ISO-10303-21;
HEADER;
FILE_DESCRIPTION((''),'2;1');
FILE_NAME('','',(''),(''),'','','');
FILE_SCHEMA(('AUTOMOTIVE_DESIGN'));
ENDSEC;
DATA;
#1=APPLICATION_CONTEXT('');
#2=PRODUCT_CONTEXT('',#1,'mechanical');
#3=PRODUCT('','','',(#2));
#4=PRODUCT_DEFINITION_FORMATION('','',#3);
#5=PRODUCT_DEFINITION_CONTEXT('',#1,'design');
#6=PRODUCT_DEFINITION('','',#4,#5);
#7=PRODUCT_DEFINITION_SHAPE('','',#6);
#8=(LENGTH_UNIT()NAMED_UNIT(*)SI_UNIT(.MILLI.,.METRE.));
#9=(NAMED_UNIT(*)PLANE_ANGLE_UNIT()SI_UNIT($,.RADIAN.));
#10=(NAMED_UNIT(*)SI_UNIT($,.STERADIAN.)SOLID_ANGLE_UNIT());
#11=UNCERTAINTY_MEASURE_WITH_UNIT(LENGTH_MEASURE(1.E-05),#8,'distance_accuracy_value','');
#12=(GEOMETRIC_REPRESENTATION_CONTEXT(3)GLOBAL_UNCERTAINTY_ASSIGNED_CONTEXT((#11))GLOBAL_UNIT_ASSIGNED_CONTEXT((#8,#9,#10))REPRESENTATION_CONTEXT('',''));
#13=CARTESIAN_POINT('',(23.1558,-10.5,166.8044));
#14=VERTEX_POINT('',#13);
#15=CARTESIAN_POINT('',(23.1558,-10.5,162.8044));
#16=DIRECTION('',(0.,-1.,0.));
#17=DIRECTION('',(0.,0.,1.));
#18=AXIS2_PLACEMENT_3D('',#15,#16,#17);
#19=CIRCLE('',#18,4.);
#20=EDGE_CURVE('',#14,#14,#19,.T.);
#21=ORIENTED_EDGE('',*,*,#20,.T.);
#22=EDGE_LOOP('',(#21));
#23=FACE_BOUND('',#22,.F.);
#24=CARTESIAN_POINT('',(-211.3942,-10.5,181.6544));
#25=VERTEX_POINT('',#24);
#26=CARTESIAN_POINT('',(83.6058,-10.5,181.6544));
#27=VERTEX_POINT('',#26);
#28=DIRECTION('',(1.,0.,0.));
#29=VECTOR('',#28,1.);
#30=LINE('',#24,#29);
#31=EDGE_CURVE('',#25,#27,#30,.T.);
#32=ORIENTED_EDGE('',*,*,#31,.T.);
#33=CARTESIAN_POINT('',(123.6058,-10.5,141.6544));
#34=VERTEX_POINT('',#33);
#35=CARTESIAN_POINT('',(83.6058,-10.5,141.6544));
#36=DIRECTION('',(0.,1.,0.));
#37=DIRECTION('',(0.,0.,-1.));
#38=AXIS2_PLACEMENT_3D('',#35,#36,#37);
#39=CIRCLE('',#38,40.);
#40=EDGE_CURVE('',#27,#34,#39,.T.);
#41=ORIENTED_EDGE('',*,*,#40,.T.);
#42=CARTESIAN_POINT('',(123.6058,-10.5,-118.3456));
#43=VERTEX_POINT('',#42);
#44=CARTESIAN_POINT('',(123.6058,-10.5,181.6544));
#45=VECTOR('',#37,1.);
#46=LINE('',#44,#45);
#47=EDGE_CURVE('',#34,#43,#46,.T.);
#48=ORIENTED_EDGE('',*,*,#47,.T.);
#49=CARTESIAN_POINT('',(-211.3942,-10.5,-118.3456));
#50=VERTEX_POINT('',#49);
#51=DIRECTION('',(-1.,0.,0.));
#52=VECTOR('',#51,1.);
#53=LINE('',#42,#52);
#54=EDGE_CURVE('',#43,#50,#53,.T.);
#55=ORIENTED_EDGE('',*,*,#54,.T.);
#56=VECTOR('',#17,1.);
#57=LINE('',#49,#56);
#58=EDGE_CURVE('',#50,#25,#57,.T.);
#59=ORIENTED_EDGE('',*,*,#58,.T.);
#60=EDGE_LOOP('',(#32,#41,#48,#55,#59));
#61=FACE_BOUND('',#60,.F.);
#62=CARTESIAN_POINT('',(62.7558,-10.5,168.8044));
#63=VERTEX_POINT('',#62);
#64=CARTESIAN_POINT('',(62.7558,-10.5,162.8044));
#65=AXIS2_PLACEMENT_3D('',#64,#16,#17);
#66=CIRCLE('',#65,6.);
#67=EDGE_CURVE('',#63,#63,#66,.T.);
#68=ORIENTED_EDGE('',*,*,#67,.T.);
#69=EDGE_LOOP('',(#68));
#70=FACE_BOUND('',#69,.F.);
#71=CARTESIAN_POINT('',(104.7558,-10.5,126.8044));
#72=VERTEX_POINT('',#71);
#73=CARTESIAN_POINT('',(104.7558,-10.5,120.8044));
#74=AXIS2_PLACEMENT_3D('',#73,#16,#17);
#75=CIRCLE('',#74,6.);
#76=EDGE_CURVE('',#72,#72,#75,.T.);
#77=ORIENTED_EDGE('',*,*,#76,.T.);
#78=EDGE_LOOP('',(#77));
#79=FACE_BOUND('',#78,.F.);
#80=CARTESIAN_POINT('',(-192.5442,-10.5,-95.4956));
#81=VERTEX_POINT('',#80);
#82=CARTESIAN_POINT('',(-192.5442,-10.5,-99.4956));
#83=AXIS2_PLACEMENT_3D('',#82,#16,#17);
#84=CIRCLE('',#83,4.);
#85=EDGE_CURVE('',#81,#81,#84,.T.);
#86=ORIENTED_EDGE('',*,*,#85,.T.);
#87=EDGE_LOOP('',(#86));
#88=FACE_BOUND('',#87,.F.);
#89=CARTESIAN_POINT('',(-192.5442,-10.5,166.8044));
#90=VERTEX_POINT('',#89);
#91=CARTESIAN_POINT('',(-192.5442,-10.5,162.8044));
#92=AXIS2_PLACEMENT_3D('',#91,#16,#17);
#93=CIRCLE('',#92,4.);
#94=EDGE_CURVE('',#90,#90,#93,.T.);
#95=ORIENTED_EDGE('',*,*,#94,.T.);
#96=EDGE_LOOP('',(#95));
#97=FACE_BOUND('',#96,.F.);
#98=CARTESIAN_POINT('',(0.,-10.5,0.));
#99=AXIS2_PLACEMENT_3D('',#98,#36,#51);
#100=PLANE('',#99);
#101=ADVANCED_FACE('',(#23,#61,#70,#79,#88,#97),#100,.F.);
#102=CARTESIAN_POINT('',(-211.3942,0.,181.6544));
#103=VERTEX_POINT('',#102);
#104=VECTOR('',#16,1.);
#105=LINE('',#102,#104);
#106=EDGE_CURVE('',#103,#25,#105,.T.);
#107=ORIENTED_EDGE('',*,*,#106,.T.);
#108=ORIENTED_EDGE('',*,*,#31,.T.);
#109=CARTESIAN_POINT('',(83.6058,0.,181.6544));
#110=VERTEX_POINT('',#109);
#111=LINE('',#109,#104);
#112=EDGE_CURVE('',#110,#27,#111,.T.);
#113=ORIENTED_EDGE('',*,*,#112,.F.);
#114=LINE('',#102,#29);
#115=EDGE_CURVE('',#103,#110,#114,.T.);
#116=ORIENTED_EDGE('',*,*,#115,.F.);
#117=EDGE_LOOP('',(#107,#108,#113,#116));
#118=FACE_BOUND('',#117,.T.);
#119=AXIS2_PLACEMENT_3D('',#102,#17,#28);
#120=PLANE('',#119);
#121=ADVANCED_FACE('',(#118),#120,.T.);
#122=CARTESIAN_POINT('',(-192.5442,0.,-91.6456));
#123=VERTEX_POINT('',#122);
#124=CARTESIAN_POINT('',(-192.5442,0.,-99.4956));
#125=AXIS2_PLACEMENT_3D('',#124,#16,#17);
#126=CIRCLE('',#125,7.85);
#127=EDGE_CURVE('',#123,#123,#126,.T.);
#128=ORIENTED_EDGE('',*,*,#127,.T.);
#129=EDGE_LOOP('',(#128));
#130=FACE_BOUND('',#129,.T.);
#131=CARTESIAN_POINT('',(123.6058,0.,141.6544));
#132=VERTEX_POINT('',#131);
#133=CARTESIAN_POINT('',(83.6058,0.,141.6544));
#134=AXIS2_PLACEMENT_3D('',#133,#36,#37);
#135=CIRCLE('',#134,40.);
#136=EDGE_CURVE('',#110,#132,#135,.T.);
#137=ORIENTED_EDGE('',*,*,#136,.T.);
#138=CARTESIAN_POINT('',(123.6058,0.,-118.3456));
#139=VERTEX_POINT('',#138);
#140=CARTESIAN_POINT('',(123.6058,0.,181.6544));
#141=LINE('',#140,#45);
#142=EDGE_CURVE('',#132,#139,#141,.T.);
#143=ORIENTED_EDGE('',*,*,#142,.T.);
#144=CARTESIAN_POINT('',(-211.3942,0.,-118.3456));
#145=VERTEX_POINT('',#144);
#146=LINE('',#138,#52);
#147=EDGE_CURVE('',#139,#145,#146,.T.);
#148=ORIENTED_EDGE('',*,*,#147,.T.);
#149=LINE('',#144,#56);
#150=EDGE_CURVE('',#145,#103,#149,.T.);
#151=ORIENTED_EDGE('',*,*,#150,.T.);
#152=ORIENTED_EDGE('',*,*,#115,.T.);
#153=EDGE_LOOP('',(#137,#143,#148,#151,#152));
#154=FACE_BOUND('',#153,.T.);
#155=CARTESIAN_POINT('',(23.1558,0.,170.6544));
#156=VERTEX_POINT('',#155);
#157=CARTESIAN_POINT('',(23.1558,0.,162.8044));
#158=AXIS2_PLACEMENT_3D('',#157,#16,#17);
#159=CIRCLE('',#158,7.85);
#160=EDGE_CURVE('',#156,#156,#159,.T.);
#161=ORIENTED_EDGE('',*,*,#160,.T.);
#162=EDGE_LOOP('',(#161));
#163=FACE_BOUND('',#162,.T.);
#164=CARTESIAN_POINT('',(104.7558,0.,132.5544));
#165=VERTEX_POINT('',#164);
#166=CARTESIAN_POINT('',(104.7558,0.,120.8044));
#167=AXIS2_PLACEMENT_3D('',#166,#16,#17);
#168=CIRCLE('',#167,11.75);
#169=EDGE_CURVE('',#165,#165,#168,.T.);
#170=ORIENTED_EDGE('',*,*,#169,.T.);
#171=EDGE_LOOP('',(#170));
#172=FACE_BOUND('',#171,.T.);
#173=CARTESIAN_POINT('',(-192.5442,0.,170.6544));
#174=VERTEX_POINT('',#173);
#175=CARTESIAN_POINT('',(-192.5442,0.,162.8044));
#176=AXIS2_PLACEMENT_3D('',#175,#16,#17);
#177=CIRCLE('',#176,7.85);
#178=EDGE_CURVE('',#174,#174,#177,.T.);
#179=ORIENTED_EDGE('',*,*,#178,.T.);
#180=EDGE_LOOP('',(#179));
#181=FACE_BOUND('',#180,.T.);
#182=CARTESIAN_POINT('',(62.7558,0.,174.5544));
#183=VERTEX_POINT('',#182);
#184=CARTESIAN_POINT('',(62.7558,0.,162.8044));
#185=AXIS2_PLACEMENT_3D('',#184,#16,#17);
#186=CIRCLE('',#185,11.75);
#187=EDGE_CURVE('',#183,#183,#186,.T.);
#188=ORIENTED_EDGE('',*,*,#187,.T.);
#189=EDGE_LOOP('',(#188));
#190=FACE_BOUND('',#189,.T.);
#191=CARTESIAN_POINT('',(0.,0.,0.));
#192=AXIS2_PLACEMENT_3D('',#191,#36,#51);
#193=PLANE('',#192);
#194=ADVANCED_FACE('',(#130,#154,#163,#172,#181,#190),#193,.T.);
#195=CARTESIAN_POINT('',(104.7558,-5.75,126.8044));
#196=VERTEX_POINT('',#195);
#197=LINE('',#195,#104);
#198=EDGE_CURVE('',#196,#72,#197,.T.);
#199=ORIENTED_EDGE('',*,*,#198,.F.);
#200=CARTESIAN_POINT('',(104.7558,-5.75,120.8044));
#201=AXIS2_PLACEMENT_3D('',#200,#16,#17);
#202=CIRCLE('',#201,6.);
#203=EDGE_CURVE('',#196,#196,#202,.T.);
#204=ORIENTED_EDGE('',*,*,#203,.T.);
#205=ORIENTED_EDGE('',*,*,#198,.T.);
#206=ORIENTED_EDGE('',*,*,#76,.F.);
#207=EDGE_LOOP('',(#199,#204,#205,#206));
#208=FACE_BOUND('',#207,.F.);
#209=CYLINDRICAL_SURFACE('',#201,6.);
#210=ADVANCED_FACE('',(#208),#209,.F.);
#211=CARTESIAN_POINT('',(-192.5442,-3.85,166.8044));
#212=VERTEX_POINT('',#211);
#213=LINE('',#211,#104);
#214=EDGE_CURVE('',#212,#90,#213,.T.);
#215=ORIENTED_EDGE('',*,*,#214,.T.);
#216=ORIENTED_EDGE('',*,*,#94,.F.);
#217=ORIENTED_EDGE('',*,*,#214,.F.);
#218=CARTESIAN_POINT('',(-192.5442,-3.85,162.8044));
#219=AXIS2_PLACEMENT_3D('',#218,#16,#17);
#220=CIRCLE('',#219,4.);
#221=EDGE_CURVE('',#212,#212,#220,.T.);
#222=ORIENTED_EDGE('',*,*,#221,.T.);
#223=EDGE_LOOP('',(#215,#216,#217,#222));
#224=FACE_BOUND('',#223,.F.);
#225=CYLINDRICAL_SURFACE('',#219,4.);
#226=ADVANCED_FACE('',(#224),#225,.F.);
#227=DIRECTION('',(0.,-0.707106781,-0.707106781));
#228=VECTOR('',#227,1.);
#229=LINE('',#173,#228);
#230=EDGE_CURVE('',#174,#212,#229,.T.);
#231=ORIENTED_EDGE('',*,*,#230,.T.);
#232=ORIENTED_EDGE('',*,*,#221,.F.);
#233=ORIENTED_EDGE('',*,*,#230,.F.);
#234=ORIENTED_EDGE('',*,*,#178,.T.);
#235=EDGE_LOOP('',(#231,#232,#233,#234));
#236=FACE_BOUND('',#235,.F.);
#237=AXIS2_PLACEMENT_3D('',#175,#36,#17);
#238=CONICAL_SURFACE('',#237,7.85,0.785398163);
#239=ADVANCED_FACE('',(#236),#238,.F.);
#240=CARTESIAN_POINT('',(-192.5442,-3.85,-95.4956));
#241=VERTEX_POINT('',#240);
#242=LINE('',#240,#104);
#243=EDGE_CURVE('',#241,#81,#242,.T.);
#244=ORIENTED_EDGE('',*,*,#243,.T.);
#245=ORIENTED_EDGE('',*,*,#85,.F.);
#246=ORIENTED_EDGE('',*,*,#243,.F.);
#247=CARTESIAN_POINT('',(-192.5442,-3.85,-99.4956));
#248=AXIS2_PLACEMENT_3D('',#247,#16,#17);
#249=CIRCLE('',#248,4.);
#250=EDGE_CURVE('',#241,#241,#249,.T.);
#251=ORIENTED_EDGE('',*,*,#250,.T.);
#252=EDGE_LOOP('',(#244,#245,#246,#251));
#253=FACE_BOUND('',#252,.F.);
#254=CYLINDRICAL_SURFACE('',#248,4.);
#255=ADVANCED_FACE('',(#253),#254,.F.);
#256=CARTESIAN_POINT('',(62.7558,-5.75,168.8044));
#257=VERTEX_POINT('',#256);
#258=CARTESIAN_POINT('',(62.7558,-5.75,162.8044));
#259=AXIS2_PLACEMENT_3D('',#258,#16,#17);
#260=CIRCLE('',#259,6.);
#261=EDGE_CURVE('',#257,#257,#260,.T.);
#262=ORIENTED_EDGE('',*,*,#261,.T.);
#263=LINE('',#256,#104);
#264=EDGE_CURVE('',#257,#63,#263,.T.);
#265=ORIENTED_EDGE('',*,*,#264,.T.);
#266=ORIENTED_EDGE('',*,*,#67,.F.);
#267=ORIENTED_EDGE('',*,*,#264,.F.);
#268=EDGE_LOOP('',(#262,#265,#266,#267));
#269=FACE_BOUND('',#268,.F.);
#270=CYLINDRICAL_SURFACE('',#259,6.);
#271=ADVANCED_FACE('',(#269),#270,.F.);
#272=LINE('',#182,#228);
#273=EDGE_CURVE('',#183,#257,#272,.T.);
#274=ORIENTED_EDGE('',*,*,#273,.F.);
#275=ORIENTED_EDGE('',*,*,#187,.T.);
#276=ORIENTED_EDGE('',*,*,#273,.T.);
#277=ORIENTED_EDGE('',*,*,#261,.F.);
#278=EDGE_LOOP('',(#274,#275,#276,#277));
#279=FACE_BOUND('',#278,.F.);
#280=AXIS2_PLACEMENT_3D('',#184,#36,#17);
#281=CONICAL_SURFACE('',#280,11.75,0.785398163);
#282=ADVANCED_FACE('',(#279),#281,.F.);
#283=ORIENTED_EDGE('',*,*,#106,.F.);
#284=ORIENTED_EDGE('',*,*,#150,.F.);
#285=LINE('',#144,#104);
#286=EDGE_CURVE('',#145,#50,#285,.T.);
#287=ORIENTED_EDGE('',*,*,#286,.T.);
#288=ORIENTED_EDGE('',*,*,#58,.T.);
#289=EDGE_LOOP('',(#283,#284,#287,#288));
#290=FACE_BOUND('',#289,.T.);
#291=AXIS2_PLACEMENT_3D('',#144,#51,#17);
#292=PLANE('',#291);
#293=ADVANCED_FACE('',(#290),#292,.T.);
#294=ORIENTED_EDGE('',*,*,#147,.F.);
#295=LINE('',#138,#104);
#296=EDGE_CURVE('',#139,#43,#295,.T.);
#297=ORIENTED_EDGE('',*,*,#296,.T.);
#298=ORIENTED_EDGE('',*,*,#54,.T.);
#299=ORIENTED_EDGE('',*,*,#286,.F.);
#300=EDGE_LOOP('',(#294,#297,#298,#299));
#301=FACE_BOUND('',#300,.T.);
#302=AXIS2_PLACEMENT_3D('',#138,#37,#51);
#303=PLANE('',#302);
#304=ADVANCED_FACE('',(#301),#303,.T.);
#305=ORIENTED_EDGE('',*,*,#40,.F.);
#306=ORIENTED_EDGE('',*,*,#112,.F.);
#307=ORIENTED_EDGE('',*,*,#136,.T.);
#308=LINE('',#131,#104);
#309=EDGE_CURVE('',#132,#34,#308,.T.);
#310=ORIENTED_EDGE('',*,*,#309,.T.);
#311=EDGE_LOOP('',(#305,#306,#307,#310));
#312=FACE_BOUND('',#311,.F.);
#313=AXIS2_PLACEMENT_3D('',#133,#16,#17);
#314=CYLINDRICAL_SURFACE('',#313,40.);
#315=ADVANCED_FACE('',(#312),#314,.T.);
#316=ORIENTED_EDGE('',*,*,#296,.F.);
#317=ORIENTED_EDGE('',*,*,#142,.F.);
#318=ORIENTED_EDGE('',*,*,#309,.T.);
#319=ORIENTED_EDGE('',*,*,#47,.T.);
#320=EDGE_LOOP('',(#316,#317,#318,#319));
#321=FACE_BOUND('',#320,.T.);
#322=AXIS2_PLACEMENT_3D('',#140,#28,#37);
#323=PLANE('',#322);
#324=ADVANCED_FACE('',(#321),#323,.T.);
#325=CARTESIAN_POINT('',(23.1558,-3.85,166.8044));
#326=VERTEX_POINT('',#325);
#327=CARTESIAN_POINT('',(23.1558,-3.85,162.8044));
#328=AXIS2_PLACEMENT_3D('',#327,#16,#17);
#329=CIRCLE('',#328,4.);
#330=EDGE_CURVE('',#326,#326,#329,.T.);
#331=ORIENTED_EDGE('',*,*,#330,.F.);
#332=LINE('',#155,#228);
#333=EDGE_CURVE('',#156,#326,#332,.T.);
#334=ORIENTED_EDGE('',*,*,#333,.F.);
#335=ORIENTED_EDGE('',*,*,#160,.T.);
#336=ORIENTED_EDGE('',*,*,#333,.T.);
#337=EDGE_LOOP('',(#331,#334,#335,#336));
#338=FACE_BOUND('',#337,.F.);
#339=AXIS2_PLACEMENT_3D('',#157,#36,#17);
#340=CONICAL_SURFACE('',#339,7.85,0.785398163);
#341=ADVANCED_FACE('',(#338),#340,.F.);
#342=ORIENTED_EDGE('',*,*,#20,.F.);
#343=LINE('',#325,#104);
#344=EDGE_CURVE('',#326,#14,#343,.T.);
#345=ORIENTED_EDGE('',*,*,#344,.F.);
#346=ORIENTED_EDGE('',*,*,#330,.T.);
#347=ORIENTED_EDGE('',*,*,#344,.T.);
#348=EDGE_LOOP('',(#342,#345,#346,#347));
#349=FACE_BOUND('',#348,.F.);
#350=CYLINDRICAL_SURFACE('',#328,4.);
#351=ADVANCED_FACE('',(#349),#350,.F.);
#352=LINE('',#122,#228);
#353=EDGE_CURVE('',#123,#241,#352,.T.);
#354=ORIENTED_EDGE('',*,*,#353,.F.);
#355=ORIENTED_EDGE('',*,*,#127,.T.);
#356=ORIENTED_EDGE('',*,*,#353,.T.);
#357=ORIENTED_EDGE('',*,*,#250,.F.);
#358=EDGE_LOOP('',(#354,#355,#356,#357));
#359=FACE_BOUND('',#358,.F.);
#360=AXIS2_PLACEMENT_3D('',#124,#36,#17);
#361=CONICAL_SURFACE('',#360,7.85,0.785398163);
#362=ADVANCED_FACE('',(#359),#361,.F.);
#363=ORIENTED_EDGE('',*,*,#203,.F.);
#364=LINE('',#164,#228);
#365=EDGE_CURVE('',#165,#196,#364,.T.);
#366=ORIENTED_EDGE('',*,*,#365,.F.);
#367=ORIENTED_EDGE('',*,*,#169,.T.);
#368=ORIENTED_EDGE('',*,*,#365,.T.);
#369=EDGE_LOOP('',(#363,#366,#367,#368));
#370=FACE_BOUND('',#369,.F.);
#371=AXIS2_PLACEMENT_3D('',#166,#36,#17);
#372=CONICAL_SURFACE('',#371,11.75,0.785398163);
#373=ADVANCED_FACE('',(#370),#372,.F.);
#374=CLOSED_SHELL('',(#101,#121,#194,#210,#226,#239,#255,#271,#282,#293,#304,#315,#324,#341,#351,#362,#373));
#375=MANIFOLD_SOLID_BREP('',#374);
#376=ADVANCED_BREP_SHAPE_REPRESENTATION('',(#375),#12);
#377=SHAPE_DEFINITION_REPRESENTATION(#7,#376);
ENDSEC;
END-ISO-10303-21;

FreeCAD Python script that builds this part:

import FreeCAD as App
import Part
import Sketcher
from FreeCAD import Vector
Q = App.Units.Quantity


def edges_at(feature, points):
    """Names of the edges that pass closest to the given points."""
    edges = feature.Shape.Edges
    near = lambda p: min(range(len(edges)), key=lambda i: edges[i].distToShape(Part.Vertex(*p))[0])
    return sorted({f"Edge{near(p) + 1}" for p in points})

doc = App.newDocument("Part")
body = doc.addObject("PartDesign::Body", "Body")

# Sketch on XZ plane
sketch1 = body.newObject("Sketcher::SketchObject", "Sketch")
sketch1.AttachmentSupport = (doc.getObject("XZ_Plane"), [""])
sketch1.MapMode = "FlatFace"
sketch1.addGeometry([
    Part.LineSegment(Vector(-211.3942, -118.3456, 0), Vector(-211.3942, 181.6544, 0)),
    Part.LineSegment(Vector(-211.3942, 181.6544, 0), Vector(123.6058, 181.6544, 0)),
    Part.LineSegment(Vector(123.6058, 181.6544, 0), Vector(123.6058, -118.3456, 0)),
    Part.LineSegment(Vector(123.6058, -118.3456, 0), Vector(-211.3942, -118.3456, 0)),
], False)
sketch1.addConstraint([
    Sketcher.Constraint("Coincident", 0, 2, 1, 1),
    Sketcher.Constraint("Coincident", 1, 2, 2, 1),
    Sketcher.Constraint("Coincident", 2, 2, 3, 1),
    Sketcher.Constraint("Coincident", 3, 2, 0, 1),
    Sketcher.Constraint("Vertical", 0),
    Sketcher.Constraint("Horizontal", 1),
    Sketcher.Constraint("Vertical", 2),
    Sketcher.Constraint("Horizontal", 3),
    Sketcher.Constraint("DistanceX", 1, 1, 1, 2, Q("335 mm")),
    Sketcher.Constraint("DistanceY", 0, 1, 0, 2, Q("300 mm")),
    Sketcher.Constraint("DistanceX", 0, 2, -1, 1, Q("211.3942 mm")),
    Sketcher.Constraint("DistanceY", -1, 1, 0, 2, Q("181.6544 mm")),
])
pad1 = body.newObject("PartDesign::Pad", "Pad")
pad1.Profile = sketch1
pad1.Length = 10.5

# Sketch on XZ plane
sketch2 = body.newObject("Sketcher::SketchObject", "Sketch001")
sketch2.AttachmentSupport = (doc.getObject("XZ_Plane"), [""])
sketch2.MapMode = "FlatFace"
sketch2.addGeometry([
    Part.Circle(Vector(-192.5442, 162.8044, 0), Vector(0, 0, 1), 4),
    Part.Circle(Vector(23.1558, 162.8044, 0), Vector(0, 0, 1), 4),
    Part.Circle(Vector(-192.5442, -99.4956, 0), Vector(0, 0, 1), 4),
], False)
sketch2.addConstraint([
    Sketcher.Constraint("Equal", 0, 1),
    Sketcher.Constraint("Equal", 1, 2),
    Sketcher.Constraint("Horizontal", 0, 3, 1, 3),
    Sketcher.Constraint("Vertical", 0, 3, 2, 3),
    Sketcher.Constraint("Diameter", 0, Q("8 mm")),
    Sketcher.Constraint("DistanceX", 0, 3, 1, 3, Q("215.7 mm")),
    Sketcher.Constraint("DistanceY", 2, 3, 0, 3, Q("262.3 mm")),
    Sketcher.Constraint("DistanceX", 0, 3, -1, 1, Q("192.5442 mm")),
    Sketcher.Constraint("DistanceY", -1, 1, 0, 3, Q("162.8044 mm")),
])
doc.recompute()
hole = body.newObject("PartDesign::Hole", "Hole")
hole.Profile = sketch2
hole.ThreadType = "None"
hole.Diameter = 8
hole.DepthType = "ThroughAll"
hole.HoleCutType = "Countersink"
hole.HoleCutDiameter = 15.7
hole.HoleCutCountersinkAngle = 90
hole.Reversed = True

# Sketch on XZ plane
sketch3 = body.newObject("Sketcher::SketchObject", "Sketch002")
sketch3.AttachmentSupport = (doc.getObject("XZ_Plane"), [""])
sketch3.MapMode = "FlatFace"
sketch3.addGeometry([
    Part.Circle(Vector(62.7558, 162.8044, 0), Vector(0, 0, 1), 6),
    Part.Circle(Vector(104.7558, 120.8044, 0), Vector(0, 0, 1), 6),
], False)
sketch3.addConstraint([
    Sketcher.Constraint("Equal", 0, 1),
    Sketcher.Constraint("Diameter", 0, Q("12 mm")),
    Sketcher.Constraint("DistanceX", 0, 3, 1, 3, Q("42 mm")),
    Sketcher.Constraint("DistanceY", 1, 3, 0, 3, Q("42 mm")),
    Sketcher.Constraint("DistanceX", -1, 1, 0, 3, Q("62.7558 mm")),
    Sketcher.Constraint("DistanceY", -1, 1, 0, 3, Q("162.8044 mm")),
])
doc.recompute()
hole2 = body.newObject("PartDesign::Hole", "Hole001")
hole2.Profile = sketch3
hole2.ThreadType = "None"
hole2.Diameter = 12
hole2.DepthType = "ThroughAll"
hole2.HoleCutType = "Countersink"
hole2.HoleCutDiameter = 23.5
hole2.HoleCutCountersinkAngle = 90
hole2.Reversed = True
doc.recompute()

fillet = body.newObject("PartDesign::Fillet", "Fillet")
fillet.Base = (hole2, edges_at(hole2, [(123.606, -5.25, 181.654)]))
fillet.Radius = 40

doc.recompute()
